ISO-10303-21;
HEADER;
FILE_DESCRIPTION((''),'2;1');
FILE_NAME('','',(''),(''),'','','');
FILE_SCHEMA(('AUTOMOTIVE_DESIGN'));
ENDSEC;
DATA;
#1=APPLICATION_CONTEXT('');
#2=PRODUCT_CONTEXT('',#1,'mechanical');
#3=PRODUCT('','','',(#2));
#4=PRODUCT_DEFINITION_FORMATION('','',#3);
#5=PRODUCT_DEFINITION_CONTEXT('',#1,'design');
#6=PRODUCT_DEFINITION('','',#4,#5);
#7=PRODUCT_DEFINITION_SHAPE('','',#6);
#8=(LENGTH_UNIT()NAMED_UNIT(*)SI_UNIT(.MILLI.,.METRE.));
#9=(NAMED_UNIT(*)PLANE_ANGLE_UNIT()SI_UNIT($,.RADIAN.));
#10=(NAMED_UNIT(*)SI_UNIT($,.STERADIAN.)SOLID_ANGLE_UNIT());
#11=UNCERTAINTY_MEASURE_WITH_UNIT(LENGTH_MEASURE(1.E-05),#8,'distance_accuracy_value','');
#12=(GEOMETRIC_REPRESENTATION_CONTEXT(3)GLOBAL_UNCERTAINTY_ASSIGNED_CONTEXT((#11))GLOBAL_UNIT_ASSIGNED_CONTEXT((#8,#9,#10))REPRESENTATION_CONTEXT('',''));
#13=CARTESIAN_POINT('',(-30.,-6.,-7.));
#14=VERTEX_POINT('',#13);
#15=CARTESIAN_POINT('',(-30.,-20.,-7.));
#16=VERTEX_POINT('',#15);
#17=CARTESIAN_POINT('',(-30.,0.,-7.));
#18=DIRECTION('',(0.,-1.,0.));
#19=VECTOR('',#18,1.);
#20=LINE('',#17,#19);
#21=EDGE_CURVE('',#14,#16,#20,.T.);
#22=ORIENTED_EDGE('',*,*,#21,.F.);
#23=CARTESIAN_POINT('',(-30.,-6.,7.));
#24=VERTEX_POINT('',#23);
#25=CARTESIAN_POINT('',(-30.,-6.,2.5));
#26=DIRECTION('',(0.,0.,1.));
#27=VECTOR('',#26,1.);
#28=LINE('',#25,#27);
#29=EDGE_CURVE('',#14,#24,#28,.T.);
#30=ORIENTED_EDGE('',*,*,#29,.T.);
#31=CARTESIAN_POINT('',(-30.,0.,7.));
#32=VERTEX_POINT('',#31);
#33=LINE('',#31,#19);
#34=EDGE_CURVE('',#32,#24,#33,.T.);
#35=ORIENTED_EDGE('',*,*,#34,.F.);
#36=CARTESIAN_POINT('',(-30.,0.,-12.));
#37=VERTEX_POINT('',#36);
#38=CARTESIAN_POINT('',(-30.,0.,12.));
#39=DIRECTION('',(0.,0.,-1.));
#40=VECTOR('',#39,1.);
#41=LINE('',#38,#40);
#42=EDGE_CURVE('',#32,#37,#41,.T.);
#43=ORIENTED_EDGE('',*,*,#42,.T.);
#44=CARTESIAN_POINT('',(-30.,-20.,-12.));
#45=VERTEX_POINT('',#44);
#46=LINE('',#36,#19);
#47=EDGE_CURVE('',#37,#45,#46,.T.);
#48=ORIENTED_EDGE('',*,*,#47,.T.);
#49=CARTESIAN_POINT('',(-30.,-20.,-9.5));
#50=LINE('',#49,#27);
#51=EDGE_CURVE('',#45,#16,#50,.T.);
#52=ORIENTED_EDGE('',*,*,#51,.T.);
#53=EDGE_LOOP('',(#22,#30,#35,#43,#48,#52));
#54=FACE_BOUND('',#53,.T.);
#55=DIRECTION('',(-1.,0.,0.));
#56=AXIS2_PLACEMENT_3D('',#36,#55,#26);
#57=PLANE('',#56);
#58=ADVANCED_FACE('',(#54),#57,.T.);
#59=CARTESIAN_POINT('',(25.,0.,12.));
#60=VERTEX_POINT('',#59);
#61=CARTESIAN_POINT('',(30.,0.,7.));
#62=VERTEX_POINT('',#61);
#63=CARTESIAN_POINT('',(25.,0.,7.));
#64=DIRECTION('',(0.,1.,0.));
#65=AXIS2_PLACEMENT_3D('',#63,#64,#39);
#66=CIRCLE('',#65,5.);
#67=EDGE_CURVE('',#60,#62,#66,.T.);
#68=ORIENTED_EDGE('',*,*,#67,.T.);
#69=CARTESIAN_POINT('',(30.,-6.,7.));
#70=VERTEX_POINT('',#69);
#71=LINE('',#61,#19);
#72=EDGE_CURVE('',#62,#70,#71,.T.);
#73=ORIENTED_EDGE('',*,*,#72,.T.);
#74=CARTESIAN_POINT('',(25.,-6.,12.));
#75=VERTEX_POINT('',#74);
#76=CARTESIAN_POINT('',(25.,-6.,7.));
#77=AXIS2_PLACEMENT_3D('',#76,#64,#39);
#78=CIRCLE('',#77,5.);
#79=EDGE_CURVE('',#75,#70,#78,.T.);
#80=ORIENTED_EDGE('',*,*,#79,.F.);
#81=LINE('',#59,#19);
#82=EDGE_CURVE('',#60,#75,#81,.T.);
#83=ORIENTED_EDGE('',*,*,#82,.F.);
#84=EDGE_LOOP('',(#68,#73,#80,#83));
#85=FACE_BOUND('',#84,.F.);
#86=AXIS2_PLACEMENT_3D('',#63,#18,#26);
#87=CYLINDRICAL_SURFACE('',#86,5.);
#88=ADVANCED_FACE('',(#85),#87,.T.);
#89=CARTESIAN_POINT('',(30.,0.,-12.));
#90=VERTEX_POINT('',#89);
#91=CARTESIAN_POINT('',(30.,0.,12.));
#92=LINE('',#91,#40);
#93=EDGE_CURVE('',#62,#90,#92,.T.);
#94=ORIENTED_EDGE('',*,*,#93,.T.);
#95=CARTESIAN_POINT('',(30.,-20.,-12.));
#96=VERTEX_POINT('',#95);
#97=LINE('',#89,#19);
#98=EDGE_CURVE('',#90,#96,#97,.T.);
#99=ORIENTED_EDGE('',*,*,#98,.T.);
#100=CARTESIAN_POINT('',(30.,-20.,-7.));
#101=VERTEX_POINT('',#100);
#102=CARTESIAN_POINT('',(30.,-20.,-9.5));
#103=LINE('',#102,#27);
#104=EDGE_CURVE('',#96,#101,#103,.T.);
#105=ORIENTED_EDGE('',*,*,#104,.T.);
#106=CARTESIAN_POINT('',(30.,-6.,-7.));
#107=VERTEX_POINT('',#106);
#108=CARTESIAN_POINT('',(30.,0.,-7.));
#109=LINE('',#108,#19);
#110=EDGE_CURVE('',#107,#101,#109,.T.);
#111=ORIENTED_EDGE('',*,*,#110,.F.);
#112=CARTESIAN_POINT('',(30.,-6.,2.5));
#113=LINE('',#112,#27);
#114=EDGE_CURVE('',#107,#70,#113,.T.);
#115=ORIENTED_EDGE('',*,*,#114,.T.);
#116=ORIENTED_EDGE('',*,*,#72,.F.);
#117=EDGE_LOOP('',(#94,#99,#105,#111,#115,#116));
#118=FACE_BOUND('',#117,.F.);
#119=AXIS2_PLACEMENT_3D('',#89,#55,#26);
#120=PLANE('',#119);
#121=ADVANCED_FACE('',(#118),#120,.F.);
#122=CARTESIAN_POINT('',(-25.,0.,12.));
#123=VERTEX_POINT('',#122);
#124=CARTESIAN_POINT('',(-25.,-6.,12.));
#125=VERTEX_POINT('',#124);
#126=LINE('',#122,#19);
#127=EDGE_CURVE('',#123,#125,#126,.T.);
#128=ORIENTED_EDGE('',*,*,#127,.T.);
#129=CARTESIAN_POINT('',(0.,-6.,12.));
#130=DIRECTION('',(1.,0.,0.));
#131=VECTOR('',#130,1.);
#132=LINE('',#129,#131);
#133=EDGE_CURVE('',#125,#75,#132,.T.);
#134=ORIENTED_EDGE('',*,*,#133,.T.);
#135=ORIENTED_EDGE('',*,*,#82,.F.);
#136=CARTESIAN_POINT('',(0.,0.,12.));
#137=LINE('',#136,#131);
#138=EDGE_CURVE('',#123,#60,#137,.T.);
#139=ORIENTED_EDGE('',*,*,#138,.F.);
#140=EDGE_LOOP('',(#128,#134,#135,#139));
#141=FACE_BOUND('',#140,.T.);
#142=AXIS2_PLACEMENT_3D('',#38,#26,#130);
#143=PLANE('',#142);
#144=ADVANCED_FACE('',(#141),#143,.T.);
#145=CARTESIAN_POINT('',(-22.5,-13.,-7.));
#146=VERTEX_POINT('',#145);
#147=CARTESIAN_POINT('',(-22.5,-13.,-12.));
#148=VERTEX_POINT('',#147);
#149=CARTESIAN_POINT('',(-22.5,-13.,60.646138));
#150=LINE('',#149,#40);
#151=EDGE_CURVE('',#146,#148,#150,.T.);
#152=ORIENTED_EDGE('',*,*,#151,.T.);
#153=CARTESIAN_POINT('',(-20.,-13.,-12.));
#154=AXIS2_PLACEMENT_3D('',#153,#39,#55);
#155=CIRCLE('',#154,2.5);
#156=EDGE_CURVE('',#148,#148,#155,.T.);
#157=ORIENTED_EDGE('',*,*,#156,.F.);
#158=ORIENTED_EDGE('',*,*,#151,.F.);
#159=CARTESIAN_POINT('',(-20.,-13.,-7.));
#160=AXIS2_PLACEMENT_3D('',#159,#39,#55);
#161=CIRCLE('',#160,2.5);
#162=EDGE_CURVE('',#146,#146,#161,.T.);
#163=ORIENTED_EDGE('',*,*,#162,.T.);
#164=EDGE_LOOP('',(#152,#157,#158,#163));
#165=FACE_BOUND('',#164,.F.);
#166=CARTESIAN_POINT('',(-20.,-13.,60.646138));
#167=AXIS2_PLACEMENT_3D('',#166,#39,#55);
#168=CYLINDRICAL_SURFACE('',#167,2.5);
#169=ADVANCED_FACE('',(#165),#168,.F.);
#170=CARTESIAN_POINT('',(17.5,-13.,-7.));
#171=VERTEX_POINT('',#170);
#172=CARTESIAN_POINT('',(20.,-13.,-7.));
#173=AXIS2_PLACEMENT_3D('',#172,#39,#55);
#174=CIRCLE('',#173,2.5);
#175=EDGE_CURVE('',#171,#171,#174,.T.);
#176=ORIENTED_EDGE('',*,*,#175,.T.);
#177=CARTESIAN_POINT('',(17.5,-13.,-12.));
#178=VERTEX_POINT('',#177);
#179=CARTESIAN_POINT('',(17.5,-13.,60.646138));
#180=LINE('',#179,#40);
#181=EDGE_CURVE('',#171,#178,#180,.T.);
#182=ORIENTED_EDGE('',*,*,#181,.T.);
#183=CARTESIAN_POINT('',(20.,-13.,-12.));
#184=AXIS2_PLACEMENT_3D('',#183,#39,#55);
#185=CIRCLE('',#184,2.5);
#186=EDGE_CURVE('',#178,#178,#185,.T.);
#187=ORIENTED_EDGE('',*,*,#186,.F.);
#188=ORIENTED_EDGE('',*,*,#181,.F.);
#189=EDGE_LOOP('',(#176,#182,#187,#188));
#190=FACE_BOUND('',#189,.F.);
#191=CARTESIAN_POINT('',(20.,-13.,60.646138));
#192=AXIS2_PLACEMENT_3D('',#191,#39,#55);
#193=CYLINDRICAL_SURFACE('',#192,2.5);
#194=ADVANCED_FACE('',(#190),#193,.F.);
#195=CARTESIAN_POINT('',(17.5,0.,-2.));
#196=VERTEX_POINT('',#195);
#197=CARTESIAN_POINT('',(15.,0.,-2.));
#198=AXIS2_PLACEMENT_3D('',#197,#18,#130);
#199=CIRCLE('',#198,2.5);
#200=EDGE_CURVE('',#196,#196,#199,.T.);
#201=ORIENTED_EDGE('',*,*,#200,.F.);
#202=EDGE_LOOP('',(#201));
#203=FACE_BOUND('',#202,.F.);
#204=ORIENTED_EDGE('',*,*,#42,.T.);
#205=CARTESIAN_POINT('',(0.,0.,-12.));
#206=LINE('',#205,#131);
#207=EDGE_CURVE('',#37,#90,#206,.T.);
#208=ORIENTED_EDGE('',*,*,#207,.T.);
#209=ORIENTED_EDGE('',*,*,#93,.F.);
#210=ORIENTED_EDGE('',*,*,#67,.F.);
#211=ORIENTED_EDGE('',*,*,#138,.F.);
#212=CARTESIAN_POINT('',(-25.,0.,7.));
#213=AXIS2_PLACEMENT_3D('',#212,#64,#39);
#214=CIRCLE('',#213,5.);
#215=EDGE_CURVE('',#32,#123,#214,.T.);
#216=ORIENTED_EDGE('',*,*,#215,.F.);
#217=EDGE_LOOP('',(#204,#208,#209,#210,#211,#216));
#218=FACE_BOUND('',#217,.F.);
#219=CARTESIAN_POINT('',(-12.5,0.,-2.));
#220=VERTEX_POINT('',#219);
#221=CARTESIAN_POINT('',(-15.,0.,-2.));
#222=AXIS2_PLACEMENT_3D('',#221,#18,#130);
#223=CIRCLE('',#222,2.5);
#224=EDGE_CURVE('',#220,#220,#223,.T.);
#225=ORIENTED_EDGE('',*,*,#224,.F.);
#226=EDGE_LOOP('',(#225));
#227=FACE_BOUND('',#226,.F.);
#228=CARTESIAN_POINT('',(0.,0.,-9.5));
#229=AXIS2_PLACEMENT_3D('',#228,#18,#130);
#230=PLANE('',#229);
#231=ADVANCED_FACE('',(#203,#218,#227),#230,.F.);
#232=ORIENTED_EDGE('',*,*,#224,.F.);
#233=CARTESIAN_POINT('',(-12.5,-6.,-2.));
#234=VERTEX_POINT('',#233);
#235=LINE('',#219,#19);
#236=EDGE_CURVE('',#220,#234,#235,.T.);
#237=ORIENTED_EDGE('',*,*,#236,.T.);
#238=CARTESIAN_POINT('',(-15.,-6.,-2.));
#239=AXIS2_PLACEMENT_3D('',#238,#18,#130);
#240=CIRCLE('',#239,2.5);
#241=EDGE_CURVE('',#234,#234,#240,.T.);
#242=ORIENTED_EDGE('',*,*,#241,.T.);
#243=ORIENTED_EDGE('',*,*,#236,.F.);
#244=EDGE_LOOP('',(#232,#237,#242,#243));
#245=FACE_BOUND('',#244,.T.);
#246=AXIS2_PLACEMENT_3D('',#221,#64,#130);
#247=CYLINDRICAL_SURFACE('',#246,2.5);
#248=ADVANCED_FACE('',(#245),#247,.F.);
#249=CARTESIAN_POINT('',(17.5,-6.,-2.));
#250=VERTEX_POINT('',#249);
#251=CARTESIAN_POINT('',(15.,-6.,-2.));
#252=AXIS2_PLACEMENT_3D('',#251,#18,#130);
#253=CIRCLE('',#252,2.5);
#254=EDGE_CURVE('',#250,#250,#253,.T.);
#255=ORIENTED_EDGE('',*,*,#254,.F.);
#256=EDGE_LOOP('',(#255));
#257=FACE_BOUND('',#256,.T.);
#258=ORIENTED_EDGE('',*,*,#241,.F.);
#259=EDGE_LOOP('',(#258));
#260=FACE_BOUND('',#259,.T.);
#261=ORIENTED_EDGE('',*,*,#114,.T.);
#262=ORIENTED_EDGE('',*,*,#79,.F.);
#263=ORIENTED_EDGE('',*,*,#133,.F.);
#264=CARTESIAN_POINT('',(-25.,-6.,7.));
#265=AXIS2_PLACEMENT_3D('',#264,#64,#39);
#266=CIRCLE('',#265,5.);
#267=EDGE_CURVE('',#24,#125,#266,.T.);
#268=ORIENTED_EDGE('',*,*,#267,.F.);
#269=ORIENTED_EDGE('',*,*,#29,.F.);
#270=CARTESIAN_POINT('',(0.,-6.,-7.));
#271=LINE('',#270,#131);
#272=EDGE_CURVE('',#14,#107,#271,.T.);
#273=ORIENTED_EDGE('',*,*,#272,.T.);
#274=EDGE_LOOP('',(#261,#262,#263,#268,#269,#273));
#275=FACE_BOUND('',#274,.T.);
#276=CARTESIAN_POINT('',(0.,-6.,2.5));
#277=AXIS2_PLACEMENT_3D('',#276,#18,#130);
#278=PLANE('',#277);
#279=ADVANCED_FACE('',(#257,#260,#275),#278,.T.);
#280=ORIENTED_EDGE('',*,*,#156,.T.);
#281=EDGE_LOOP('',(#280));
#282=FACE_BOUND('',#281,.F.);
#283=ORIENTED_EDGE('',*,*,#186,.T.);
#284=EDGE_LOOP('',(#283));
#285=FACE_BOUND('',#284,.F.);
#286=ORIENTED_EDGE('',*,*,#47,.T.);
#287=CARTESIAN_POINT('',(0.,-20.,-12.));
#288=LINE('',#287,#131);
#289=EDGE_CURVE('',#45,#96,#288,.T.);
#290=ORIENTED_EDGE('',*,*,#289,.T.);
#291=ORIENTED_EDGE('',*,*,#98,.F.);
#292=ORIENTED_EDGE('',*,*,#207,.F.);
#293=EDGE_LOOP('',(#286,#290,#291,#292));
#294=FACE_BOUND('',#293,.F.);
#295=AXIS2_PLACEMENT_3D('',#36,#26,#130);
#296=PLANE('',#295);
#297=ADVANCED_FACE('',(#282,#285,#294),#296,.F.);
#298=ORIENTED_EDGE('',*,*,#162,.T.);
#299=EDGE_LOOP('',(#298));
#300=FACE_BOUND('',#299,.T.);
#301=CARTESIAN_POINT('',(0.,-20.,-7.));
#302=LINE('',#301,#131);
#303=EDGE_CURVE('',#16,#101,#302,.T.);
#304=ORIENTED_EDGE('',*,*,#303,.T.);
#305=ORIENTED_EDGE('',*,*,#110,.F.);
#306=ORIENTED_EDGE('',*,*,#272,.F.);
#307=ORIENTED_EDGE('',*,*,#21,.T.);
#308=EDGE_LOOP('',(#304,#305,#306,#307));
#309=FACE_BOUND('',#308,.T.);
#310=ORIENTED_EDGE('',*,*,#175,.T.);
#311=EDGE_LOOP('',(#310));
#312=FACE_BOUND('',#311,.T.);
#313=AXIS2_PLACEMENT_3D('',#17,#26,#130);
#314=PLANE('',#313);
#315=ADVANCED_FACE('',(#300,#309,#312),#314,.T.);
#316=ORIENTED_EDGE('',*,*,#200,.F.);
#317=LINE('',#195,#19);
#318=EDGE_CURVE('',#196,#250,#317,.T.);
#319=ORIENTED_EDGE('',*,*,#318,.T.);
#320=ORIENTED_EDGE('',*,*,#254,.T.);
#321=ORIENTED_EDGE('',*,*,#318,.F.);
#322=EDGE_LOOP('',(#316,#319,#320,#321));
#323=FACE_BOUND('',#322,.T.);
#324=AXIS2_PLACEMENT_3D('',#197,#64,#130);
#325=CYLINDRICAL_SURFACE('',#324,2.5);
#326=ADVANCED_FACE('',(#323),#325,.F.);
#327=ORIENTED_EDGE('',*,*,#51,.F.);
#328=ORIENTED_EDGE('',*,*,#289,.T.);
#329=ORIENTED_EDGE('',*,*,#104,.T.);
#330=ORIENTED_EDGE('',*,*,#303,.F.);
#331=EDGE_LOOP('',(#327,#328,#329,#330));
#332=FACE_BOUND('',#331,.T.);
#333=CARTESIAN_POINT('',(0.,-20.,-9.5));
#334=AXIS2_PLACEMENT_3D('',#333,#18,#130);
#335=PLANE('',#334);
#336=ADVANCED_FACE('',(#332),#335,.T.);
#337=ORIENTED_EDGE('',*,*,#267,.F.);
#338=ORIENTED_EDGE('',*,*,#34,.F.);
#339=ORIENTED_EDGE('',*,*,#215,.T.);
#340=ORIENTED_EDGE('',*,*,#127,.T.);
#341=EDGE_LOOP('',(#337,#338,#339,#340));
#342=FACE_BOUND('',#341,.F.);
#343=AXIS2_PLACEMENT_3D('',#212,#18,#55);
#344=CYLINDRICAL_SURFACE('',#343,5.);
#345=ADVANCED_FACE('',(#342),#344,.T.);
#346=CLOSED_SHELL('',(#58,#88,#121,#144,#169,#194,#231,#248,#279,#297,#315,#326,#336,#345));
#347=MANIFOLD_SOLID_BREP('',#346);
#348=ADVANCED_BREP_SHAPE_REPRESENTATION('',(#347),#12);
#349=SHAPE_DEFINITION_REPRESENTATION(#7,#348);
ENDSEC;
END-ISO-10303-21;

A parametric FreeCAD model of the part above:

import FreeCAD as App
import Part
import Sketcher


def edges_at(feature, points):
    """Names of the edges that pass closest to the given points."""
    edges = feature.Shape.Edges
    near = lambda p: min(range(len(edges)), key=lambda i: edges[i].distToShape(Part.Vertex(*p))[0])
    return sorted({f"Edge{near(p) + 1}" for p in points})

doc = App.newDocument("Part")
body = doc.addObject("PartDesign::Body", "Body")

sketch1 = doc.addObject("Sketcher::SketchObject", "Sketch")
body.addObject(sketch1)
sketch1.AttachmentSupport = (doc.XZ_Plane, [""])
sketch1.MapMode = "FlatFace"
sketch1.addGeometry([
    Part.LineSegment(App.Vector(-30, 12, 0), App.Vector(-30, -7, 0)),
    Part.LineSegment(App.Vector(-30, -7, 0), App.Vector(30, -7, 0)),
    Part.LineSegment(App.Vector(30, -7, 0), App.Vector(30, 12, 0)),
    Part.LineSegment(App.Vector(30, 12, 0), App.Vector(-30, 12, 0)),
    Part.Circle(App.Vector(-15, -2, 0), App.Vector(0, 0, 1), 2.5),
    Part.Circle(App.Vector(15, -2, 0), App.Vector(0, 0, 1), 2.5),
], False)
sketch1.addConstraint([
    Sketcher.Constraint("Coincident", 0, 2, 1, 1),
    Sketcher.Constraint("Coincident", 1, 2, 2, 1),
    Sketcher.Constraint("Coincident", 2, 2, 3, 1),
    Sketcher.Constraint("Coincident", 3, 2, 0, 1),
    Sketcher.Constraint("Vertical", 0),
    Sketcher.Constraint("Horizontal", 1),
    Sketcher.Constraint("Vertical", 2),
    Sketcher.Constraint("Horizontal", 3),
    Sketcher.Constraint("Equal", 4, 5),
    Sketcher.Constraint("Symmetric", 4, 3, 5, 3, -2),
    Sketcher.Constraint("Diameter", 4, 5.0),
    Sketcher.Constraint("DistanceX", 1, 1, 1, 2, 60.0),
    Sketcher.Constraint("DistanceY", 0, 2, 0, 1, 19.0),
    Sketcher.Constraint("DistanceX", 4, 3, -1, 1, 15.0),
    Sketcher.Constraint("DistanceY", 4, 3, -1, 1, 2.0),
    Sketcher.Constraint("DistanceX", 0, 2, -1, 1, 30.0),
    Sketcher.Constraint("DistanceY", 0, 2, -1, 1, 7.0),
])
pad1 = doc.addObject("PartDesign::Pad", "Pad")
body.addObject(pad1)
pad1.Profile = sketch1
pad1.Length = 6

sketch2 = doc.addObject("Sketcher::SketchObject", "Sketch001")
body.addObject(sketch2)
sketch2.AttachmentSupport = (doc.XZ_Plane, [""])
sketch2.MapMode = "FlatFace"
sketch2.addGeometry([
    Part.LineSegment(App.Vector(-30, -7, 0), App.Vector(-30, -12, 0)),
    Part.LineSegment(App.Vector(-30, -12, 0), App.Vector(30, -12, 0)),
    Part.LineSegment(App.Vector(30, -12, 0), App.Vector(30, -7, 0)),
    Part.LineSegment(App.Vector(30, -7, 0), App.Vector(-30, -7, 0)),
], False)
sketch2.addConstraint([
    Sketcher.Constraint("Coincident", 0, 2, 1, 1),
    Sketcher.Constraint("Coincident", 1, 2, 2, 1),
    Sketcher.Constraint("Coincident", 2, 2, 3, 1),
    Sketcher.Constraint("Coincident", 3, 2, 0, 1),
    Sketcher.Constraint("Vertical", 0),
    Sketcher.Constraint("Horizontal", 1),
    Sketcher.Constraint("Vertical", 2),
    Sketcher.Constraint("Horizontal", 3),
    Sketcher.Constraint("DistanceX", 1, 1, 1, 2, 60.0),
    Sketcher.Constraint("DistanceY", 0, 2, 0, 1, 5.0),
    Sketcher.Constraint("DistanceX", 0, 2, -1, 1, 30.0),
    Sketcher.Constraint("DistanceY", 0, 2, -1, 1, 12.0),
])
pad2 = doc.addObject("PartDesign::Pad", "Pad001")
body.addObject(pad2)
pad2.Profile = sketch2
pad2.Length = 20

sketch3 = doc.addObject("Sketcher::SketchObject", "Sketch002")
body.addObject(sketch3)
sketch3.AttachmentSupport = (doc.XY_Plane, [""])
sketch3.MapMode = "FlatFace"
sketch3.AttachmentOffset = App.Placement(App.Vector(0, 0, -7), App.Rotation())
sketch3.addGeometry([
    Part.Circle(App.Vector(-20, -13, 0), App.Vector(0, 0, 1), 2.5),
    Part.Circle(App.Vector(20, -13, 0), App.Vector(0, 0, 1), 2.5),
], False)
sketch3.addConstraint([
    Sketcher.Constraint("Equal", 0, 1),
    Sketcher.Constraint("Symmetric", 0, 3, 1, 3, -2),
    Sketcher.Constraint("Diameter", 0, 5.0),
    Sketcher.Constraint("DistanceX", 0, 3, -1, 1, 20.0),
    Sketcher.Constraint("DistanceY", 0, 3, -1, 1, 13.0),
])
doc.recompute()
hole = doc.addObject("PartDesign::Hole", "Hole")
body.addObject(hole)
hole.Profile = sketch3
hole.ThreadType = "None"
hole.Diameter = 5
hole.DepthType = "ThroughAll"
doc.recompute()

fillet = doc.addObject("PartDesign::Fillet", "Fillet")
body.addObject(fillet)
fillet.Base = (hole, edges_at(hole, [(-30, -3, 12), (30, -3, 12)]))
fillet.Radius = 5

doc.recompute()
